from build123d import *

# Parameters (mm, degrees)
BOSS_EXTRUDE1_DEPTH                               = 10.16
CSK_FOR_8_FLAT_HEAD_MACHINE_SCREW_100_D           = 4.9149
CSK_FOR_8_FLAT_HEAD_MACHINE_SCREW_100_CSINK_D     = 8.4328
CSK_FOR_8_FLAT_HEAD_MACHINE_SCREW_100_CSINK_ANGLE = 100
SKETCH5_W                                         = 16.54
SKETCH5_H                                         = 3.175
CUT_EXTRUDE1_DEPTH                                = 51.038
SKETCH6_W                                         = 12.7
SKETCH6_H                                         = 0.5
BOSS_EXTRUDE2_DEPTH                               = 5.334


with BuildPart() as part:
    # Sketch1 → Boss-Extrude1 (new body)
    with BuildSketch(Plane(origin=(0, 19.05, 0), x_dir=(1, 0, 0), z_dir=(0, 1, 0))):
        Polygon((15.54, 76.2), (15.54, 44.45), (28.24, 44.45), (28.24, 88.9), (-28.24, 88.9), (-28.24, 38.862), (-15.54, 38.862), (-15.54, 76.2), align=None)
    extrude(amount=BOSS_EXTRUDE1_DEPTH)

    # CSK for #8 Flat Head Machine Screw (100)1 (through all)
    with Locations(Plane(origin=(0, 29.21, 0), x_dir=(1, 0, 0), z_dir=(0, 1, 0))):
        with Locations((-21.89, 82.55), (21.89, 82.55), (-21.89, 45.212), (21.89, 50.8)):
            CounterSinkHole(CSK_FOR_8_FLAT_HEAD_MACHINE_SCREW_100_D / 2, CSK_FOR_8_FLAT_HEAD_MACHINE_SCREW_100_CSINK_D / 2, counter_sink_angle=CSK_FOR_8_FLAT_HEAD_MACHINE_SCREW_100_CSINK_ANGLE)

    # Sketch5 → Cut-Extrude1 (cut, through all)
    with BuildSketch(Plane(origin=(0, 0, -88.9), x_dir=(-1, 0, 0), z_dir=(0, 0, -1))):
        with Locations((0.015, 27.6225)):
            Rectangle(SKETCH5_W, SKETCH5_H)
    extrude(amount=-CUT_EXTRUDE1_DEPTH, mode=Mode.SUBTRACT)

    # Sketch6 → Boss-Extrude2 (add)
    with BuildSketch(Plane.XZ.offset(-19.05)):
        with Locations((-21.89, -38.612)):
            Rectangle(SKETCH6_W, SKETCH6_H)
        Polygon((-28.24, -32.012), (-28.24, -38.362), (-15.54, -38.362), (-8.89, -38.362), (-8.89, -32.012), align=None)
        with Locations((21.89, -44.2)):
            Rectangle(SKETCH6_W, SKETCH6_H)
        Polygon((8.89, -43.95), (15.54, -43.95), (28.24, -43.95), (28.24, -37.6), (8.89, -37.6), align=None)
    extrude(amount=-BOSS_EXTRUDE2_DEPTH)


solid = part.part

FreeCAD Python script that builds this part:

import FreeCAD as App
import Part
import Sketcher
Q = App.Units.Quantity

doc = App.newDocument("Part")
body = doc.addObject("PartDesign::Body", "Body")

# Sketch on XZ plane
sketch1 = doc.addObject("Sketcher::SketchObject", "Sketch")
body.addObject(sketch1)
sketch1.AttachmentSupport = (doc.XZ_Plane, [""])
sketch1.MapMode = "FlatFace"
sketch1.AttachmentOffset = App.Placement(App.Vector(0, 0, -0.75 * 25.4), App.Rotation())
sketch1.addGeometry([
    Part.LineSegment(App.Vector(15.54, -76.2, 0), App.Vector(15.54, -44.45, 0)),  # 0
    Part.LineSegment(App.Vector(15.54, -44.45, 0), App.Vector(28.24, -44.45, 0)),  # 1
    Part.LineSegment(App.Vector(28.24, -44.45, 0), App.Vector(28.24, -88.9, 0)),  # 2
    Part.LineSegment(App.Vector(28.24, -88.9, 0), App.Vector(-28.24, -88.9, 0)),  # 3
    Part.LineSegment(App.Vector(-28.24, -88.9, 0), App.Vector(-28.24, -38.862, 0)),  # 4
    Part.LineSegment(App.Vector(-28.24, -38.862, 0), App.Vector(-15.54, -38.862, 0)),  # 5
    Part.LineSegment(App.Vector(-15.54, -38.862, 0), App.Vector(-15.54, -76.2, 0)),  # 6
    Part.LineSegment(App.Vector(-15.54, -76.2, 0), App.Vector(15.54, -76.2, 0)),  # 7
], False)
sketch1.addConstraint([
    Sketcher.Constraint("Coincident", 0, 2, 1, 1),
    Sketcher.Constraint("Coincident", 1, 2, 2, 1),
    Sketcher.Constraint("Coincident", 2, 2, 3, 1),
    Sketcher.Constraint("Coincident", 3, 2, 4, 1),
    Sketcher.Constraint("Coincident", 4, 2, 5, 1),
    Sketcher.Constraint("Coincident", 5, 2, 6, 1),
    Sketcher.Constraint("Coincident", 6, 2, 7, 1),
    Sketcher.Constraint("Coincident", 7, 2, 0, 1),
    Sketcher.Constraint("Vertical", 0),
    Sketcher.Constraint("Horizontal", 1),
    Sketcher.Constraint("Vertical", 2),
    Sketcher.Constraint("Horizontal", 3),
    Sketcher.Constraint("Vertical", 4),
    Sketcher.Constraint("Horizontal", 5),
    Sketcher.Constraint("Vertical", 6),
    Sketcher.Constraint("Horizontal", 7),
    Sketcher.Constraint("Equal", 1, 5),
    Sketcher.Constraint("DistanceX", 1, 1, 1, 2, Q("0.5 in")),
    Sketcher.Constraint("DistanceY", 6, 2, -1, 1, Q("3 in")),
    Sketcher.Constraint("DistanceY", 0, 1, 0, 2, Q("1.25 in")),
    Sketcher.Constraint("DistanceY", 2, 2, 2, 1, Q("1.75 in")),
    Sketcher.Constraint("DistanceY", 4, 1, 4, 2, Q("1.97 in")),
    Sketcher.Constraint("DistanceX", 3, 2, 3, 1, Q("56.48 mm")),
    Sketcher.Constraint("DistanceX", -1, 1, 0, 2, Q("15.54 mm")),
])
pad1 = doc.addObject("PartDesign::Pad", "Pad")
body.addObject(pad1)
pad1.Profile = sketch1
pad1.Length = Q("0.4 in")
pad1.Reversed = True

# Sketch on XZ plane
sketch2 = doc.addObject("Sketcher::SketchObject", "Sketch001")
body.addObject(sketch2)
sketch2.AttachmentSupport = (doc.XZ_Plane, [""])
sketch2.MapMode = "FlatFace"
sketch2.AttachmentOffset = App.Placement(App.Vector(0, 0, -1.15 * 25.4), App.Rotation())
sketch2.addGeometry([
    Part.Circle(App.Vector(-21.89, -82.55, 0), App.Vector(0, 0, 1), 2.45745),
    Part.Circle(App.Vector(21.89, -82.55, 0), App.Vector(0, 0, 1), 2.45745),
    Part.Circle(App.Vector(-21.89, -45.212, 0), App.Vector(0, 0, 1), 2.45745),
    Part.Circle(App.Vector(21.89, -50.8, 0), App.Vector(0, 0, 1), 2.45745),
], False)
sketch2.addConstraint([
    Sketcher.Constraint("Equal", 0, 1),
    Sketcher.Constraint("Equal", 1, 2),
    Sketcher.Constraint("Equal", 2, 3),
    Sketcher.Constraint("Symmetric", 0, 3, 1, 3, -2),
    Sketcher.Constraint("Vertical", 0, 3, 2, 3),
    Sketcher.Constraint("Vertical", 1, 3, 3, 3),
    Sketcher.Constraint("DistanceY", 3, 3, -1, 1, Q("2 in")),
    Sketcher.Constraint("Diameter", 0, Q("0.1935 in")),
    Sketcher.Constraint("DistanceY", 0, 3, -1, 1, Q("3.25 in")),
    Sketcher.Constraint("DistanceY", 2, 3, -1, 1, Q("1.78 in")),
    Sketcher.Constraint("DistanceX", 0, 3, -1, 1, Q("21.89 mm")),
])
doc.recompute()
hole = doc.addObject("PartDesign::Hole", "Hole")
body.addObject(hole)
hole.Profile = sketch2
hole.ThreadType = "None"
hole.Diameter = Q("0.1935 in")
hole.DepthType = "ThroughAll"
hole.HoleCutType = "Countersink"
hole.HoleCutDiameter = Q("0.332 in")
hole.HoleCutCountersinkAngle = 100
hole.Reversed = True

# Sketch on XY plane
sketch3 = doc.addObject("Sketcher::SketchObject", "Sketch002")
body.addObject(sketch3)
sketch3.AttachmentSupport = (doc.XY_Plane, [""])
sketch3.MapMode = "FlatFace"
sketch3.AttachmentOffset = App.Placement(App.Vector(0, 0, -3.5 * 25.4), App.Rotation())
sketch3.addGeometry([
    Part.LineSegment(App.Vector(8.255, 29.21, 0), App.Vector(8.255, 26.035, 0)),
    Part.LineSegment(App.Vector(8.255, 26.035, 0), App.Vector(-8.285, 26.035, 0)),
    Part.LineSegment(App.Vector(-8.285, 26.035, 0), App.Vector(-8.285, 29.21, 0)),
    Part.LineSegment(App.Vector(-8.285, 29.21, 0), App.Vector(8.255, 29.21, 0)),
], False)
sketch3.addConstraint([
    Sketcher.Constraint("Coincident", 0, 2, 1, 1),
    Sketcher.Constraint("Coincident", 1, 2, 2, 1),
    Sketcher.Constraint("Coincident", 2, 2, 3, 1),
    Sketcher.Constraint("Coincident", 3, 2, 0, 1),
    Sketcher.Constraint("Vertical", 0),
    Sketcher.Constraint("Horizontal", 1),
    Sketcher.Constraint("Vertical", 2),
    Sketcher.Constraint("Horizontal", 3),
    Sketcher.Constraint("DistanceY", 0, 2, 0, 1, Q("0.125 in")),
    Sketcher.Constraint("DistanceY", -1, 1, 2, 2, Q("1.15 in")),
    Sketcher.Constraint("DistanceX", -1, 1, 0, 2, Q("0.325 in")),
    Sketcher.Constraint("DistanceX", 1, 2, 1, 1, Q("16.54 mm")),
])
pocket1 = doc.addObject("PartDesign::Pocket", "Pocket")
body.addObject(pocket1)
pocket1.Profile = sketch3
pocket1.Type = "ThroughAll"
pocket1.Reversed = True

# Sketch on XZ plane
sketch4 = doc.addObject("Sketcher::SketchObject", "Sketch003")
body.addObject(sketch4)
sketch4.AttachmentSupport = (doc.XZ_Plane, [""])
sketch4.MapMode = "FlatFace"
sketch4.AttachmentOffset = App.Placement(App.Vector(0, 0, -0.75 * 25.4), App.Rotation())
sketch4.addGeometry([
    Part.LineSegment(App.Vector(-28.24, -38.862, 0), App.Vector(-15.54, -38.862, 0)),  # 0
    Part.LineSegment(App.Vector(-15.54, -38.862, 0), App.Vector(-15.54, -38.362, 0)),  # 1
    Part.LineSegment(App.Vector(-15.54, -38.362, 0), App.Vector(-8.89, -38.362, 0)),  # 2
    Part.LineSegment(App.Vector(-8.89, -38.362, 0), App.Vector(-8.89, -32.012, 0)),  # 3
    Part.LineSegment(App.Vector(-8.89, -32.012, 0), App.Vector(-28.24, -32.012, 0)),  # 4
    Part.LineSegment(App.Vector(-28.24, -32.012, 0), App.Vector(-28.24, -38.862, 0)),  # 5
    Part.LineSegment(App.Vector(15.54, -43.95, 0), App.Vector(15.54, -44.45, 0)),  # 6
    Part.LineSegment(App.Vector(15.54, -44.45, 0), App.Vector(28.24, -44.45, 0)),  # 7
    Part.LineSegment(App.Vector(28.24, -44.45, 0), App.Vector(28.24, -37.6, 0)),  # 8
    Part.LineSegment(App.Vector(28.24, -37.6, 0), App.Vector(8.89, -37.6, 0)),  # 9
    Part.LineSegment(App.Vector(8.89, -37.6, 0), App.Vector(8.89, -43.95, 0)),  # 10
    Part.LineSegment(App.Vector(8.89, -43.95, 0), App.Vector(15.54, -43.95, 0)),  # 11
], False)
sketch4.addConstraint([
    Sketcher.Constraint("Coincident", 0, 2, 1, 1),
    Sketcher.Constraint("Coincident", 1, 2, 2, 1),
    Sketcher.Constraint("Coincident", 2, 2, 3, 1),
    Sketcher.Constraint("Coincident", 3, 2, 4, 1),
    Sketcher.Constraint("Coincident", 4, 2, 5, 1),
    Sketcher.Constraint("Coincident", 5, 2, 0, 1),
    Sketcher.Constraint("Coincident", 6, 2, 7, 1),
    Sketcher.Constraint("Coincident", 7, 2, 8, 1),
    Sketcher.Constraint("Coincident", 8, 2, 9, 1),
    Sketcher.Constraint("Coincident", 9, 2, 10, 1),
    Sketcher.Constraint("Coincident", 10, 2, 11, 1),
    Sketcher.Constraint("Coincident", 11, 2, 6, 1),
    Sketcher.Constraint("Horizontal", 0),
    Sketcher.Constraint("Vertical", 1),
    Sketcher.Constraint("Horizontal", 2),
    Sketcher.Constraint("Vertical", 3),
    Sketcher.Constraint("Horizontal", 4),
    Sketcher.Constraint("Vertical", 5),
    Sketcher.Constraint("Vertical", 6),
    Sketcher.Constraint("Horizontal", 7),
    Sketcher.Constraint("Vertical", 8),
    Sketcher.Constraint("Horizontal", 9),
    Sketcher.Constraint("Vertical", 10),
    Sketcher.Constraint("Horizontal", 11),
    Sketcher.Constraint("Equal", 0, 7),
    Sketcher.Constraint("Equal", 4, 9),
    Sketcher.Constraint("Equal", 1, 6),
    Sketcher.Constraint("Equal", 5, 8),
    Sketcher.Constraint("DistanceX", 0, 1, 0, 2, Q("0.5 in")),
    Sketcher.Constraint("DistanceY", 3, 1, 3, 2, Q("0.25 in")),
    Sketcher.Constraint("DistanceX", 2, 2, 9, 2, Q("0.7 in")),
    Sketcher.Constraint("DistanceY", 0, 2, -1, 1, Q("1.53 in")),
    Sketcher.Constraint("DistanceX", 2, 2, -1, 1, Q("0.35 in")),
    Sketcher.Constraint("DistanceY", 6, 2, -1, 1, Q("1.75 in")),
    Sketcher.Constraint("DistanceX", 2, 1, 2, 2, Q("6.65 mm")),
    Sketcher.Constraint("DistanceY", 1, 1, 1, 2, Q("0.5 mm")),
])
pad2 = doc.addObject("PartDesign::Pad", "Pad001")
body.addObject(pad2)
pad2.Profile = sketch4
pad2.Length = Q("0.21 in")
pad2.Reversed = True

doc.recompute()
